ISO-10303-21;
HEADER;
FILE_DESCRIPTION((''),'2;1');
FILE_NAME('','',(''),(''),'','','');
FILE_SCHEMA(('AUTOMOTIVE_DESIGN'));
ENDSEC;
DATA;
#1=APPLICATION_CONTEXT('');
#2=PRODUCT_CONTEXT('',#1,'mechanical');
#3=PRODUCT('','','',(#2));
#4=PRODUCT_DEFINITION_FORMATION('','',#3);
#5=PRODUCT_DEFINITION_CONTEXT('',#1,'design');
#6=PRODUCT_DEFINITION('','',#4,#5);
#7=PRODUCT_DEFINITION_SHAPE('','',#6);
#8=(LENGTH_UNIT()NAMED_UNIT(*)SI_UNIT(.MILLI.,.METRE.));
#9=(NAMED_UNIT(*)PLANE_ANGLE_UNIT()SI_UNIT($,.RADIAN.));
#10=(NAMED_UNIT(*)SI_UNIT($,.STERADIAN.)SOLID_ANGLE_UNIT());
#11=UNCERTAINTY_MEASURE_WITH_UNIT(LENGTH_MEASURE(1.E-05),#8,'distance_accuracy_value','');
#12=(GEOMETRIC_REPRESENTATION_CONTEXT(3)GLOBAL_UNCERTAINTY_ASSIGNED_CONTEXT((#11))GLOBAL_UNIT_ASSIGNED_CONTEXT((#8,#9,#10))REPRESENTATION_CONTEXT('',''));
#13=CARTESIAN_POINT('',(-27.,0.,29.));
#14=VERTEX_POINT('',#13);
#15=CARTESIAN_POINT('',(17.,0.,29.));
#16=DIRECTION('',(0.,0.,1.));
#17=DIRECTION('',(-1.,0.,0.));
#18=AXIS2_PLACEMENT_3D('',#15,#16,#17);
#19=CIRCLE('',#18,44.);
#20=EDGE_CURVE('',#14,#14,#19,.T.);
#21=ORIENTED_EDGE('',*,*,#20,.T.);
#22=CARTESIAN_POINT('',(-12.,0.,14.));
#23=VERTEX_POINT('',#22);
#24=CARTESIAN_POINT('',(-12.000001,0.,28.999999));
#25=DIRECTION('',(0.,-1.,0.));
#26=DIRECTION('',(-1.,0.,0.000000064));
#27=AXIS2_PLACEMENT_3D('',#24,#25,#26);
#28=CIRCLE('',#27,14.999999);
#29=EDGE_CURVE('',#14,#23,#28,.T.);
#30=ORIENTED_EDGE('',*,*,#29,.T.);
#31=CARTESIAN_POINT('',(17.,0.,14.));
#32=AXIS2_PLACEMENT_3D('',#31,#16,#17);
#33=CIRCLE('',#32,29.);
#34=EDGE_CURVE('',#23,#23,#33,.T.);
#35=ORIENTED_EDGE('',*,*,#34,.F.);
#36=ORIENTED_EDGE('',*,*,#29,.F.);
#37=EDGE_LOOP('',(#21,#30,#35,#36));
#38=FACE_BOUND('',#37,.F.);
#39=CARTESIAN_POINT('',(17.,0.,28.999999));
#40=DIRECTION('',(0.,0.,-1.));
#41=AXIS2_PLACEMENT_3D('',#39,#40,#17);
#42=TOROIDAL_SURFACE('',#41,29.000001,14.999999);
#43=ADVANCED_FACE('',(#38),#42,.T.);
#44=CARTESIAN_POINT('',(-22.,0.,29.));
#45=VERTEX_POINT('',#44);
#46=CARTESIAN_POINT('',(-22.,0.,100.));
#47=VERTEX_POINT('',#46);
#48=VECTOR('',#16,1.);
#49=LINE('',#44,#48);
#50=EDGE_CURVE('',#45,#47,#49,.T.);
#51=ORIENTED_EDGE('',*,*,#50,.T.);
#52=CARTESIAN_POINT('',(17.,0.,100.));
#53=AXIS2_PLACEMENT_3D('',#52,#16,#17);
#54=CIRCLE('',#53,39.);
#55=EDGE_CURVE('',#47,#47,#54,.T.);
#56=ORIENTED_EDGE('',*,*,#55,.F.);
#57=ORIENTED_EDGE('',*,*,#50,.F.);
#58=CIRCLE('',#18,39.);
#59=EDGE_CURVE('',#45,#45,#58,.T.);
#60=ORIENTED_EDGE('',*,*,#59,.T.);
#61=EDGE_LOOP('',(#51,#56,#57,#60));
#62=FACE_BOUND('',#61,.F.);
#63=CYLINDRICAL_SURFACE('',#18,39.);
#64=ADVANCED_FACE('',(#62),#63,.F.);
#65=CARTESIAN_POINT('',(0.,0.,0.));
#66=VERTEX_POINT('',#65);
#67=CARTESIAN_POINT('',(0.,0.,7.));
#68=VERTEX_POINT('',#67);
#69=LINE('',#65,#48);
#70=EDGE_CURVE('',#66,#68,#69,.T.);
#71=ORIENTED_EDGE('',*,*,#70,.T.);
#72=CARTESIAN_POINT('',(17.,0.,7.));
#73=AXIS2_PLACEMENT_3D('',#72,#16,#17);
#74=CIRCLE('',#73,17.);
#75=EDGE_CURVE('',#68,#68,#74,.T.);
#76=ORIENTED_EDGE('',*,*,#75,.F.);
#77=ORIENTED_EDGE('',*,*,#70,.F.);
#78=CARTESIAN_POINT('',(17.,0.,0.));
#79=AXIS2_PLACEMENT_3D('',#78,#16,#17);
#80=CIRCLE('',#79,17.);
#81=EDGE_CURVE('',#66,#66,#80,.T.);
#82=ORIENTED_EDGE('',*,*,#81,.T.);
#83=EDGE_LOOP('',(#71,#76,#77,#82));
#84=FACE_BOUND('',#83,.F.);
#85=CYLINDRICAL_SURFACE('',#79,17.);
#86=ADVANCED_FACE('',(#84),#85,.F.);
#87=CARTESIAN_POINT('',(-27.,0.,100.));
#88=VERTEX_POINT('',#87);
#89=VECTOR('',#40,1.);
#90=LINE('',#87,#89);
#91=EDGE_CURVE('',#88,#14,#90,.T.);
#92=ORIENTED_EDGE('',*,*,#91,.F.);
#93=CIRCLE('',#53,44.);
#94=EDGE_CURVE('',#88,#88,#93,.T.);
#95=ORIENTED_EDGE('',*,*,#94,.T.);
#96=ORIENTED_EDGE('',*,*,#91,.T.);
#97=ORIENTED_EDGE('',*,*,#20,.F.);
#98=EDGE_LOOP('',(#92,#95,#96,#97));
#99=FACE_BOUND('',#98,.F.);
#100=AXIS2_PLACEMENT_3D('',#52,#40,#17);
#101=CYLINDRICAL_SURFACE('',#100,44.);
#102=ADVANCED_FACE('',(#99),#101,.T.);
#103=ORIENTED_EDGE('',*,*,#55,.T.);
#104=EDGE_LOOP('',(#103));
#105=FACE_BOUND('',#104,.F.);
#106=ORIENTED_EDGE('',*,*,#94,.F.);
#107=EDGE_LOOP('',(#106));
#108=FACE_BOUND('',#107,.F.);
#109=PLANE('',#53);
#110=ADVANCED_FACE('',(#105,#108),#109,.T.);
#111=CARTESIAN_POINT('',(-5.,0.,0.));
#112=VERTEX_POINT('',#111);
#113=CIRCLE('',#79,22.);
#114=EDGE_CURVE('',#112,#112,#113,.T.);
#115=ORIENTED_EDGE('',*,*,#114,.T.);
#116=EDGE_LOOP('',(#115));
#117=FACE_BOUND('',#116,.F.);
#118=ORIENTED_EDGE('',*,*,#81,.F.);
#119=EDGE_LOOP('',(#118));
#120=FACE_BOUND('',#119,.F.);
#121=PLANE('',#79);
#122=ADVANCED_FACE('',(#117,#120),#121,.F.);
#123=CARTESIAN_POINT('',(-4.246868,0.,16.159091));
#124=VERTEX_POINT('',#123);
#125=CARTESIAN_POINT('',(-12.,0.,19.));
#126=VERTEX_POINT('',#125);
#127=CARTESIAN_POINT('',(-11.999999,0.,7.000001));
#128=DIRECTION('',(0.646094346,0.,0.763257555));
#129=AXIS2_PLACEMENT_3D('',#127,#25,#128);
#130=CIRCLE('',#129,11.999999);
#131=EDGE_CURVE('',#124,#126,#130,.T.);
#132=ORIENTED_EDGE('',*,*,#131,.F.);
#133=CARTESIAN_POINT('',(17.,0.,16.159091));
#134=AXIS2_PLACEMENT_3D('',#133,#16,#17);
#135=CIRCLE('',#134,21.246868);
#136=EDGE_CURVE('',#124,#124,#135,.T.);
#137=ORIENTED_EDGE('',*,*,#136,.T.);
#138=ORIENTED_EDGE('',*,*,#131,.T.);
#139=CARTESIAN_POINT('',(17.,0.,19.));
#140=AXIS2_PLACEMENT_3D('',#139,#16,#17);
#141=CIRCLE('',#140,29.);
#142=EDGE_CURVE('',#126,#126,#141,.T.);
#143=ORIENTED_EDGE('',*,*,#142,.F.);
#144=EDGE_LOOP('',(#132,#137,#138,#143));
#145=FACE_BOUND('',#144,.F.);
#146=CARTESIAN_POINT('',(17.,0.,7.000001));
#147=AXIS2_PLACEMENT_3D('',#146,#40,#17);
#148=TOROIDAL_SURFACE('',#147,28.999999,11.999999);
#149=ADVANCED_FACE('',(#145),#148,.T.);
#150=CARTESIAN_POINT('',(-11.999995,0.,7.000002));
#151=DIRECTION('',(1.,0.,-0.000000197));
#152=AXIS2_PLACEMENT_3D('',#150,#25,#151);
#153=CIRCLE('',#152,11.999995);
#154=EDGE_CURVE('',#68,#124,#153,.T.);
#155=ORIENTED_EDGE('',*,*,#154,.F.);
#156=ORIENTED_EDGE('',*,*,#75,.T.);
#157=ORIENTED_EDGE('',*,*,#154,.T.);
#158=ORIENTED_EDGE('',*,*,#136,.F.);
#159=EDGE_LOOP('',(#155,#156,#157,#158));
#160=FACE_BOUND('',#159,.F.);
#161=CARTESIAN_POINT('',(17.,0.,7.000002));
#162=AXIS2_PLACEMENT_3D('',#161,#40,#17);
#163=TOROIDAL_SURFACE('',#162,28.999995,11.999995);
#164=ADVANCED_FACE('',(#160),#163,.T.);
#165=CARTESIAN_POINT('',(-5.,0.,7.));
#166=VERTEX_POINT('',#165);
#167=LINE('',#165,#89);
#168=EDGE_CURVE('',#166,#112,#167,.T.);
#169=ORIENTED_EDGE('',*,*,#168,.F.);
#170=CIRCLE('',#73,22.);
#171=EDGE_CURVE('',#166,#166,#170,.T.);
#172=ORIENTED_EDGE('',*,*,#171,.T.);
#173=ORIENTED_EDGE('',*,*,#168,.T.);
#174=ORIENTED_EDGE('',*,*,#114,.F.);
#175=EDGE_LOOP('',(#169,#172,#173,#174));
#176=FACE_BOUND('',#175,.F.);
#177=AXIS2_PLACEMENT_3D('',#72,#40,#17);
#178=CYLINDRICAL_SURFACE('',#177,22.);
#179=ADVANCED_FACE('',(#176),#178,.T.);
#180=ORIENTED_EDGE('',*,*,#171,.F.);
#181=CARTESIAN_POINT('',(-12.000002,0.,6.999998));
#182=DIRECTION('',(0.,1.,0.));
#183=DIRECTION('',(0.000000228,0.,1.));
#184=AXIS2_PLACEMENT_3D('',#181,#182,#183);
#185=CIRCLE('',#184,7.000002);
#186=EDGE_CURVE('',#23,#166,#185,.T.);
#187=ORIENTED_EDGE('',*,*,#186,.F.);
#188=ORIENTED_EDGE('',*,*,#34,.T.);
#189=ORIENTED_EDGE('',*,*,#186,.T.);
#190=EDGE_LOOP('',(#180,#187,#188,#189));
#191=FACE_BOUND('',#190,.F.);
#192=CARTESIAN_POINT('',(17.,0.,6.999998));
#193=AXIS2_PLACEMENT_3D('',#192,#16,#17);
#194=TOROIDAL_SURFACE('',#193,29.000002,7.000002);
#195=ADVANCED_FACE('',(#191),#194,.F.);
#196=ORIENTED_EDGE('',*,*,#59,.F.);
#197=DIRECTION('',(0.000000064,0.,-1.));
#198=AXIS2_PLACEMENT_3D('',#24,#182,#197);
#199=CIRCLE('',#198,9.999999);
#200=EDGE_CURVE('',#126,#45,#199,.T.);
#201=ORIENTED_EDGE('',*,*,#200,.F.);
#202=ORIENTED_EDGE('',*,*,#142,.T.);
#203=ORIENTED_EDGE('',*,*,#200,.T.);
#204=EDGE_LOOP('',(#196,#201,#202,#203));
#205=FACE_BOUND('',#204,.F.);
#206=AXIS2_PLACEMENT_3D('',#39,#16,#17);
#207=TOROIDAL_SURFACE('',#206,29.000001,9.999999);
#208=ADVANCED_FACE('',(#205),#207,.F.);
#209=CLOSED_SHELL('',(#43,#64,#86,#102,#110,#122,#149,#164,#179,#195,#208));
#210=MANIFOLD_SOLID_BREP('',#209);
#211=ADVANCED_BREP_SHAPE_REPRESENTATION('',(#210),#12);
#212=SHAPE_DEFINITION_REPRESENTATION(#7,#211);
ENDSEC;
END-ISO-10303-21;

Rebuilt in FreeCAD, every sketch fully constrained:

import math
import FreeCAD as App
import Part
import Sketcher
Q = App.Units.Quantity

doc = App.newDocument("Part")
body = doc.addObject("PartDesign::Body", "Body")

# Sketch on XZ plane
sketch1 = body.newObject("Sketcher::SketchObject", "Sketch")
sketch1.AttachmentSupport = (doc.getObject("XZ_Plane"), [""])
sketch1.MapMode = "FlatFace"
sketch1.addGeometry([
    Part.LineSegment(App.Vector(-5, 0, 0), App.Vector(0, 0, 0)),  # 0
    Part.LineSegment(App.Vector(0, 0, 0), App.Vector(0, 7, 0)),  # 1
    Part.ArcOfCircle(Part.Circle(App.Vector(-12, 7, 0), App.Vector(0, 0, 1), 12), math.radians(0), math.radians(50)),  # 2
    Part.ArcOfCircle(Part.Circle(App.Vector(-12, 7, 0), App.Vector(0, 0, 1), 12), math.radians(50), math.radians(90)),  # 3
    Part.ArcOfCircle(Part.Circle(App.Vector(-12, 29, 0), App.Vector(0, 0, 1), 10), math.radians(180), math.radians(270)),  # 4
    Part.LineSegment(App.Vector(-22, 29, 0), App.Vector(-22, 100, 0)),  # 5
    Part.LineSegment(App.Vector(-22, 100, 0), App.Vector(-27, 100, 0)),  # 6
    Part.LineSegment(App.Vector(-27, 100, 0), App.Vector(-27, 29, 0)),  # 7
    Part.ArcOfCircle(Part.Circle(App.Vector(-12, 29, 0), App.Vector(0, 0, 1), 15), math.radians(180), math.radians(270)),  # 8
    Part.ArcOfCircle(Part.Circle(App.Vector(-12, 7, 0), App.Vector(0, 0, 1), 7), math.radians(0), math.radians(90)),  # 9
    Part.LineSegment(App.Vector(-5, 7, 0), App.Vector(-5, 0, 0)),  # 10
], False)
sketch1.addGeometry(Part.LineSegment(App.Vector(17, 0, 0), App.Vector(17, 100, 0)), True)  # axis
sketch1.addConstraint([
    Sketcher.Constraint("Coincident", 0, 2, 1, 1),
    Sketcher.Constraint("Tangent", 1, 2, 2, 1),
    Sketcher.Constraint("Tangent", 2, 2, 3, 1),
    Sketcher.Constraint("Tangent", 3, 2, 4, 2),
    Sketcher.Constraint("Tangent", 4, 1, 5, 1),
    Sketcher.Constraint("Coincident", 5, 2, 6, 1),
    Sketcher.Constraint("Coincident", 6, 2, 7, 1),
    Sketcher.Constraint("Tangent", 7, 2, 8, 1),
    Sketcher.Constraint("Tangent", 8, 2, 9, 2),
    Sketcher.Constraint("Tangent", 9, 1, 10, 1),
    Sketcher.Constraint("Coincident", 10, 2, 0, 1),
    Sketcher.Constraint("Horizontal", 0),
    Sketcher.Constraint("Vertical", 1),
    Sketcher.Constraint("Vertical", 5),
    Sketcher.Constraint("Horizontal", 6),
    Sketcher.Constraint("Vertical", 7),
    Sketcher.Constraint("Vertical", 10),
    Sketcher.Constraint("Vertical", 11),
    Sketcher.Constraint("Coincident", 0, 2, -1, 1),
    Sketcher.Constraint("Coincident", 8, 3, 4, 3),
    Sketcher.Constraint("Coincident", 9, 3, 2, 3),
    Sketcher.Constraint("PointOnObject", 11, 1, -1),
    Sketcher.Constraint("Horizontal", 6, 2, 11, 2),
    Sketcher.Constraint("Vertical", 3, 3, 4, 3),
    Sketcher.Constraint("Vertical", 8, 3, 9, 3),
    Sketcher.Constraint("Radius", 3, Q("11.999999 mm")),
    Sketcher.Constraint("Radius", 4, Q("9.999999 mm")),
    Sketcher.Constraint("Radius", 8, Q("14.999999 mm")),
    Sketcher.Constraint("DistanceY", 1, 1, 1, 2, Q("7 mm")),
    Sketcher.Constraint("DistanceY", 5, 1, 5, 2, Q("71 mm")),
    Sketcher.Constraint("DistanceX", -1, 1, 11, 1, Q("17 mm")),
    Sketcher.Constraint("DistanceY", -1, 1, 2, 2, Q("16.159091 mm")),
])
revolution = body.newObject("PartDesign::Revolution", "Revolution")
revolution.Profile = sketch1
revolution.ReferenceAxis = (sketch1, ["Axis0"])
revolution.Angle = 360

doc.recompute()
